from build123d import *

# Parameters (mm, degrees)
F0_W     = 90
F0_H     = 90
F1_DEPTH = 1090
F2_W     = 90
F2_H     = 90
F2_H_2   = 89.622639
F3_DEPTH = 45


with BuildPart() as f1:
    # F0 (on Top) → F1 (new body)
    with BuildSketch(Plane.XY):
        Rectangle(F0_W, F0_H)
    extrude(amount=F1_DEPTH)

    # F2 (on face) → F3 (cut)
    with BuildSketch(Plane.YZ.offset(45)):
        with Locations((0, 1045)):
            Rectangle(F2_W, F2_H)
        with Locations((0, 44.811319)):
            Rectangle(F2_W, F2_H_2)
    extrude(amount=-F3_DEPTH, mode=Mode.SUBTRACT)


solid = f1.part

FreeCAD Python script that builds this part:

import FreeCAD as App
import Part
import Sketcher

V = App.Vector
Q = App.Units.Quantity

doc = App.newDocument("Part")
params = doc.addObject("Spreadsheet::Sheet", "Params")
for row, (alias, value) in enumerate([
    ("sketch1_width", "90 mm"),
    ("pad1_length", "1090 mm"),
    ("sketch2_width", "90 mm"),
    ("pocket1_length", "45 mm"),
], start=1):
    params.set(f"A{row}", alias)
    params.set(f"B{row}", "=" + value)
    params.setAlias(f"B{row}", alias)

body = doc.addObject("PartDesign::Body", "Body")

# Sketch on XY plane
sketch1 = body.newObject("Sketcher::SketchObject", "Sketch")
sketch1.AttachmentSupport = (doc.getObject("XY_Plane"), [""])
sketch1.MapMode = "FlatFace"
sketch1.addGeometry([
    Part.LineSegment(V(-45, 45, 0), V(-45, -45, 0)),
    Part.LineSegment(V(-45, -45, 0), V(45, -45, 0)),
    Part.LineSegment(V(45, -45, 0), V(45, 45, 0)),
    Part.LineSegment(V(45, 45, 0), V(-45, 45, 0)),
], False)
sketch1.addConstraint([
    Sketcher.Constraint("Coincident", 0, 2, 1, 1),
    Sketcher.Constraint("Coincident", 1, 2, 2, 1),
    Sketcher.Constraint("Coincident", 2, 2, 3, 1),
    Sketcher.Constraint("Coincident", 3, 2, 0, 1),
    Sketcher.Constraint("Vertical", 0),
    Sketcher.Constraint("Horizontal", 1),
    Sketcher.Constraint("Vertical", 2),
    Sketcher.Constraint("Horizontal", 3),
    Sketcher.Constraint("Symmetric", 0, 2, 2, 2, -1, 1),
    Sketcher.Constraint("Equal", 3, 0),
    Sketcher.Constraint("DistanceX", 1, 1, 1, 2, Q("90 mm")),
])
sketch1.setExpression("Constraints[10]", "Params.sketch1_width")
pad1 = body.newObject("PartDesign::Pad", "Pad")
pad1.Profile = sketch1
pad1.setExpression("Length", "Params.pad1_length")

# Sketch on YZ plane
sketch2 = body.newObject("Sketcher::SketchObject", "Sketch001")
sketch2.AttachmentSupport = (doc.getObject("YZ_Plane"), [""])
sketch2.MapMode = "FlatFace"
sketch2.AttachmentOffset = App.Placement(V(0, 0, 45), App.Rotation())
sketch2.addGeometry([
    Part.LineSegment(V(-45, 1090, 0), V(-45, 1000, 0)),  # 0
    Part.LineSegment(V(-45, 1000, 0), V(45, 1000, 0)),  # 1
    Part.LineSegment(V(45, 1000, 0), V(45, 1090, 0)),  # 2
    Part.LineSegment(V(45, 1090, 0), V(-45, 1090, 0)),  # 3
    Part.LineSegment(V(-45, 90, 0), V(-45, 0, 0)),  # 4
    Part.LineSegment(V(-45, 0, 0), V(45, 0, 0)),  # 5
    Part.LineSegment(V(45, 0, 0), V(45, 90, 0)),  # 6
    Part.LineSegment(V(45, 90, 0), V(-45, 90, 0)),  # 7
], False)
sketch2.addConstraint([
    Sketcher.Constraint("Coincident", 0, 2, 1, 1),
    Sketcher.Constraint("Coincident", 1, 2, 2, 1),
    Sketcher.Constraint("Coincident", 2, 2, 3, 1),
    Sketcher.Constraint("Coincident", 3, 2, 0, 1),
    Sketcher.Constraint("Coincident", 4, 2, 5, 1),
    Sketcher.Constraint("Coincident", 5, 2, 6, 1),
    Sketcher.Constraint("Coincident", 6, 2, 7, 1),
    Sketcher.Constraint("Coincident", 7, 2, 4, 1),
    Sketcher.Constraint("Vertical", 0),
    Sketcher.Constraint("Horizontal", 1),
    Sketcher.Constraint("Vertical", 2),
    Sketcher.Constraint("Horizontal", 3),
    Sketcher.Constraint("Vertical", 4),
    Sketcher.Constraint("Horizontal", 5),
    Sketcher.Constraint("Vertical", 6),
    Sketcher.Constraint("Horizontal", 7),
    Sketcher.Constraint("Symmetric", 4, 2, 5, 2, -1, 1),
    Sketcher.Constraint("Vertical", 3, 2, 4, 2),
    Sketcher.Constraint("Vertical", 2, 2, 5, 2),
    Sketcher.Constraint("Equal", 7, 0),
    Sketcher.Constraint("DistanceX", 1, 1, 1, 2, Q("90 mm")),
    Sketcher.Constraint("DistanceY", -1, 1, 0, 2, Q("1000 mm")),
    Sketcher.Constraint("DistanceY", 4, 2, 4, 1, Q("89.622639 mm")),
])
sketch2.setExpression("Constraints[20]", "Params.sketch2_width")
pocket1 = body.newObject("PartDesign::Pocket", "Pocket")
pocket1.Profile = sketch2
pocket1.setExpression("Length", "Params.pocket1_length")

doc.recompute()
